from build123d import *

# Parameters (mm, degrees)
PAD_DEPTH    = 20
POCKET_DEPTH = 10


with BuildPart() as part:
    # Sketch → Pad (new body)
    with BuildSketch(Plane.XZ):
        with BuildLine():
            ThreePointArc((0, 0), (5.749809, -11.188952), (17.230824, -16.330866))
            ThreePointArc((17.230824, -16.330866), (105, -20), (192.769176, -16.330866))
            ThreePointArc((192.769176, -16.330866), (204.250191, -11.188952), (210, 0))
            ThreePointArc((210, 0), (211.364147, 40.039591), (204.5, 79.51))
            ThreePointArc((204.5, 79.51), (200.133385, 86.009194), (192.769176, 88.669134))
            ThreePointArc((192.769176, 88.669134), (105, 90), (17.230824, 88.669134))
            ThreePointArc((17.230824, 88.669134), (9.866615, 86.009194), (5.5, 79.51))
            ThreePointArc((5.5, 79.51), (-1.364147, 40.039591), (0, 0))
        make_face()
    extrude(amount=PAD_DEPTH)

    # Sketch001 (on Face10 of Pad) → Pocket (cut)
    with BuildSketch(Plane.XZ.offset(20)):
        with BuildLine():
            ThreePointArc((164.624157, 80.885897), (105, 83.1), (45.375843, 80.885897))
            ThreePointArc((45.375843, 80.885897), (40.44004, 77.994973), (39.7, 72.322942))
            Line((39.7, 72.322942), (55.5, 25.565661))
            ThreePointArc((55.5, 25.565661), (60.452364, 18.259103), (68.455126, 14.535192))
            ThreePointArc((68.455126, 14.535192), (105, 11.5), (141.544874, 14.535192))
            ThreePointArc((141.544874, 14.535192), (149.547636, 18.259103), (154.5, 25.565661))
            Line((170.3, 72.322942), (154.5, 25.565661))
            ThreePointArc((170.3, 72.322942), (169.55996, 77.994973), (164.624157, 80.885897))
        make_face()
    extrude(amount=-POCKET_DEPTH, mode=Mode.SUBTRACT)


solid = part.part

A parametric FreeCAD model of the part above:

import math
import FreeCAD as App
import Part
import Sketcher

V = App.Vector

doc = App.newDocument("Part")
body = doc.addObject("PartDesign::Body", "Body")

# Sketch on XZ plane
sketch1 = doc.addObject("Sketcher::SketchObject", "Sketch")
body.addObject(sketch1)
sketch1.AttachmentSupport = (doc.XZ_Plane, [""])
sketch1.MapMode = "FlatFace"
sketch1.addGeometry([
    Part.ArcOfCircle(Part.Circle(V(19, 3, 0), V(0, 0, 1), 19), math.radians(-172), math.radians(-95)),  # 0
    Part.ArcOfCircle(Part.Circle(V(105, 1032, 0), V(0, 0, 1), 1052), math.radians(-94.79), math.radians(-85.21)),  # 1
    Part.ArcOfCircle(Part.Circle(V(191, 3, 0), V(0, 0, 1), 19), math.radians(-85), math.radians(-8)),  # 2
    Part.ArcOfCircle(Part.Circle(V(17, 27, 0), V(0, 0, 1), 195), math.radians(-8), math.radians(16)),  # 3
    Part.ArcOfCircle(Part.Circle(V(192, 76, 0), V(0, 0, 1), 13), math.radians(16), math.radians(88)),  # 4
    Part.ArcOfCircle(Part.Circle(V(105, -2805, 0), V(0, 0, 1), 2895), math.radians(88.26), math.radians(91.74)),  # 5
    Part.ArcOfCircle(Part.Circle(V(18, 76, 0), V(0, 0, 1), 13), math.radians(92), math.radians(164)),  # 6
    Part.ArcOfCircle(Part.Circle(V(193, 27, 0), V(0, 0, 1), 195), math.radians(164), math.radians(188)),  # 7
], False)
sketch1.addConstraint([
    Sketcher.Constraint("Tangent", 0, 2, 1, 1),
    Sketcher.Constraint("Tangent", 1, 2, 2, 1),
    Sketcher.Constraint("Tangent", 2, 2, 3, 1),
    Sketcher.Constraint("Tangent", 3, 2, 4, 1),
    Sketcher.Constraint("Tangent", 4, 2, 5, 1),
    Sketcher.Constraint("Tangent", 5, 2, 6, 1),
    Sketcher.Constraint("Tangent", 6, 2, 7, 1),
    Sketcher.Constraint("Tangent", 7, 2, 0, 1),
    Sketcher.Constraint("Coincident", 7, 2, -1, 1),
    Sketcher.Constraint("Equal", 0, 2),
    Sketcher.Constraint("Equal", 4, 6),
    Sketcher.Constraint("Equal", 3, 7),
    Sketcher.Constraint("PointOnObject", 2, 2, -1),
    Sketcher.Constraint("Horizontal", 0, 3, 2, 3),
    Sketcher.Constraint("Horizontal", 4, 3, 6, 3),
    Sketcher.Constraint("DistanceX", -1, 1, 1, 3, 105.0),
    Sketcher.Constraint("DistanceY", 0, 2, 5, 2, 105.0),
    Sketcher.Constraint("DistanceX", -1, 1, 3, 2, 204.5),
    Sketcher.Constraint("DistanceY", -1, 1, 3, 2, 79.51),
    Sketcher.Constraint("Radius", 4, 12.58641),
    Sketcher.Constraint("Radius", 0, 18.994604),
    Sketcher.Constraint("Radius", 1, 1051.595663),
    Sketcher.Constraint("Radius", 5, 2894.806637),
])
pad1 = doc.addObject("PartDesign::Pad", "Pad")
body.addObject(pad1)
pad1.Profile = sketch1
pad1.Length = 20

# Sketch on XZ plane
sketch2 = doc.addObject("Sketcher::SketchObject", "Sketch001")
body.addObject(sketch2)
sketch2.AttachmentSupport = (doc.XZ_Plane, [""])
sketch2.MapMode = "FlatFace"
sketch2.AttachmentOffset = App.Placement(V(0, 0, 20), App.Rotation())
sketch2.addGeometry([
    Part.ArcOfCircle(Part.Circle(V(105, -721, 0), V(0, 0, 1), 804), math.radians(85.75), math.radians(94.25)),  # 0
    Part.ArcOfCircle(Part.Circle(V(46, 74, 0), V(0, 0, 1), 6), math.radians(94), math.radians(199)),  # 1
    Part.LineSegment(V(40, 72, 0), V(56, 26, 0)),  # 2
    Part.ArcOfCircle(Part.Circle(V(71, 31, 0), V(0, 0, 1), 17), math.radians(-161), math.radians(-99)),  # 3
    Part.ArcOfCircle(Part.Circle(V(105, 233, 0), V(0, 0, 1), 222), math.radians(-99.5), math.radians(-80.5)),  # 4
    Part.ArcOfCircle(Part.Circle(V(139, 31, 0), V(0, 0, 1), 17), math.radians(-81), math.radians(-19)),  # 5
    Part.LineSegment(V(154, 26, 0), V(170, 72, 0)),  # 6
    Part.ArcOfCircle(Part.Circle(V(164, 74, 0), V(0, 0, 1), 6), math.radians(-19), math.radians(86)),  # 7
], False)
sketch2.addConstraint([
    Sketcher.Constraint("Tangent", 0, 2, 1, 1),
    Sketcher.Constraint("Tangent", 1, 2, 2, 1),
    Sketcher.Constraint("Tangent", 2, 2, 3, 1),
    Sketcher.Constraint("Tangent", 3, 2, 4, 1),
    Sketcher.Constraint("Tangent", 4, 2, 5, 1),
    Sketcher.Constraint("Tangent", 5, 2, 6, 1),
    Sketcher.Constraint("Tangent", 6, 2, 7, 1),
    Sketcher.Constraint("Tangent", 7, 2, 0, 1),
    Sketcher.Constraint("Equal", 3, 5),
    Sketcher.Constraint("Equal", 1, 7),
    Sketcher.Constraint("Horizontal", 3, 3, 5, 3),
    Sketcher.Constraint("Horizontal", 1, 3, 7, 3),
    Sketcher.Constraint("Horizontal", 2, 2, 5, 2),
    Sketcher.Constraint("Radius", 1, 6.499999),
    Sketcher.Constraint("DistanceX", -1, 1, 0, 3, 105.0),
    Sketcher.Constraint("DistanceX", -1, 1, 1, 2, 39.7),
    Sketcher.Constraint("DistanceX", -1, 1, 2, 2, 55.5),
    Sketcher.Constraint("Radius", 0, 803.924287),
    Sketcher.Constraint("Radius", 3, 16.558122),
    Sketcher.Constraint("Radius", 4, 221.524735),
    Sketcher.Constraint("DistanceY", -1, 1, 1, 3, 74.403799),
    Sketcher.Constraint("Distance", 2, 49.354669),
])
pocket1 = doc.addObject("PartDesign::Pocket", "Pocket")
body.addObject(pocket1)
pocket1.Profile = sketch2
pocket1.Length = 10

doc.recompute()
